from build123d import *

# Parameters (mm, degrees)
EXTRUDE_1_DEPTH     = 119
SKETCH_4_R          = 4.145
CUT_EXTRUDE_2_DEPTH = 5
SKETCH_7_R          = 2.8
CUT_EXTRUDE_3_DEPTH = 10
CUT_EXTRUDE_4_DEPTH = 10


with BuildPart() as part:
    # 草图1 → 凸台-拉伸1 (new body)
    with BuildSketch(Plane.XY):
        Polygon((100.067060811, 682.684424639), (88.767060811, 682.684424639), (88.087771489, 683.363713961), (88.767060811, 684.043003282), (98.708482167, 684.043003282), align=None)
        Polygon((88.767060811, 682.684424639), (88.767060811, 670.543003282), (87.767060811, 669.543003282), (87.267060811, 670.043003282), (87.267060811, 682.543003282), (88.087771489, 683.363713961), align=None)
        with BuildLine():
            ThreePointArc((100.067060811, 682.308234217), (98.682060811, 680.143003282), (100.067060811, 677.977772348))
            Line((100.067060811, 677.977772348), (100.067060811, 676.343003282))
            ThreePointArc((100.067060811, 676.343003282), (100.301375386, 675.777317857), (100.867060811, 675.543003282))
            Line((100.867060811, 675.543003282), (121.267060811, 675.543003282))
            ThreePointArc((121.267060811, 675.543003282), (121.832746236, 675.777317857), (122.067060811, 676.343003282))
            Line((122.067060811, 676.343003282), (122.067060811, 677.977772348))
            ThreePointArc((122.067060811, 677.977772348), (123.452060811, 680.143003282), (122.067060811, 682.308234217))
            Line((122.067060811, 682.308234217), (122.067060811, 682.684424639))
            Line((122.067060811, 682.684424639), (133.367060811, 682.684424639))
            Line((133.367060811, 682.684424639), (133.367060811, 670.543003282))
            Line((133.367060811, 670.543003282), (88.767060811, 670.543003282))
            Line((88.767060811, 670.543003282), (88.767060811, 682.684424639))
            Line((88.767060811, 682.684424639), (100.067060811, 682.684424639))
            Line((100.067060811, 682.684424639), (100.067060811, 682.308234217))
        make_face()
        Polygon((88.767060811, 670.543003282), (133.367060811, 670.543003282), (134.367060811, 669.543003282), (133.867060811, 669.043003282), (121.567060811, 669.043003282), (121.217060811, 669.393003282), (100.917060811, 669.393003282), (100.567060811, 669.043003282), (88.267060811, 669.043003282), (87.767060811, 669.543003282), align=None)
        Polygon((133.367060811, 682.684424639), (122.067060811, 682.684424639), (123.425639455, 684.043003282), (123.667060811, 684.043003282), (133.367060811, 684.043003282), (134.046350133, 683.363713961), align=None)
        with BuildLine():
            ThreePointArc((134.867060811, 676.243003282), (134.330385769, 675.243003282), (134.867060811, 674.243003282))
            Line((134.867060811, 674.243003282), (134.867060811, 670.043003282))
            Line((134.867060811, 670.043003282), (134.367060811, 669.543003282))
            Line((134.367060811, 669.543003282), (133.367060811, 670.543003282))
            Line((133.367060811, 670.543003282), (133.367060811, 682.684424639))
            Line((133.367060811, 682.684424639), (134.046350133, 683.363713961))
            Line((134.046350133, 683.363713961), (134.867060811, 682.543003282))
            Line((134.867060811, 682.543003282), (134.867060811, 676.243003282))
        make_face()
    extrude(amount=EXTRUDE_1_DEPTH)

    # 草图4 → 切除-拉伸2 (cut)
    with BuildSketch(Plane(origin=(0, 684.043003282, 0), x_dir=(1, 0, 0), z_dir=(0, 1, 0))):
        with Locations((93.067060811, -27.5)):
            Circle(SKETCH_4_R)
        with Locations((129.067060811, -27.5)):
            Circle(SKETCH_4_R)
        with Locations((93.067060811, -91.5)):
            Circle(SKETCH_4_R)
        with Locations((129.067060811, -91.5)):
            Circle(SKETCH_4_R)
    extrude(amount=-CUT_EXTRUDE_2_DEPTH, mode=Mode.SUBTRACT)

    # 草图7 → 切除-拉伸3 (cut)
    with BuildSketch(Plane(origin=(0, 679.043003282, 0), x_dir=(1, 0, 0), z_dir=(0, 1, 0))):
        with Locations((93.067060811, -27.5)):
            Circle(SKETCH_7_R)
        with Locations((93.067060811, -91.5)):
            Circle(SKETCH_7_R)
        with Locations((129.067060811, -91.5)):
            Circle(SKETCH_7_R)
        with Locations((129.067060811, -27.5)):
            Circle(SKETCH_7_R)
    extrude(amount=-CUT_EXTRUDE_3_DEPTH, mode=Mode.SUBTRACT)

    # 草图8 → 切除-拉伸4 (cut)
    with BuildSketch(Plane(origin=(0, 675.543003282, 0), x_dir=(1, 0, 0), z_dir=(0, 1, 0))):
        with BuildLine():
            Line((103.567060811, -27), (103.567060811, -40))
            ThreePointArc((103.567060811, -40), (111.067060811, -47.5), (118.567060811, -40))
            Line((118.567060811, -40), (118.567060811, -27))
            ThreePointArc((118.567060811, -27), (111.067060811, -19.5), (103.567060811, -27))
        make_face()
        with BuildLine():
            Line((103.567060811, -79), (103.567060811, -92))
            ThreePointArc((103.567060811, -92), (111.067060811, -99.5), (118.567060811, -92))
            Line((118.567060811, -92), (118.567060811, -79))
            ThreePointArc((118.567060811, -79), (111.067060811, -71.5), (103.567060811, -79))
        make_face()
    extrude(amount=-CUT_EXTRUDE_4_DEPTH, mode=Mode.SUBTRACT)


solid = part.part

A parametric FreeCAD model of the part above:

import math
import FreeCAD as App
import Part
import Sketcher

doc = App.newDocument("Part")
body = doc.addObject("PartDesign::Body", "Body")

# Sketch on XY plane
sketch1 = body.newObject("Sketcher::SketchObject", "Sketch")
sketch1.AttachmentSupport = (doc.getObject("XY_Plane"), [""])
sketch1.MapMode = "FlatFace"
sketch1.addGeometry(Part.LineSegment(App.Vector(87.27, 670.04, 0), App.Vector(88.27, 669.04, 0)), False)
sketch1.addGeometry(Part.LineSegment(App.Vector(88.27, 669.04, 0), App.Vector(100.57, 669.04, 0)), False)
sketch1.addGeometry(Part.LineSegment(App.Vector(100.57, 669.04, 0), App.Vector(100.92, 669.39, 0)), False)
sketch1.addGeometry(Part.LineSegment(App.Vector(100.92, 669.39, 0), App.Vector(121.22, 669.39, 0)), False)
sketch1.addGeometry(Part.LineSegment(App.Vector(121.22, 669.39, 0), App.Vector(121.57, 669.04, 0)), False)
sketch1.addGeometry(Part.LineSegment(App.Vector(121.57, 669.04, 0), App.Vector(133.87, 669.04, 0)), False)
sketch1.addGeometry(Part.LineSegment(App.Vector(133.87, 669.04, 0), App.Vector(134.87, 670.04, 0)), False)
sketch1.addGeometry(Part.LineSegment(App.Vector(134.87, 670.04, 0), App.Vector(134.87, 674.24, 0)), False)
sketch1.addGeometry(Part.ArcOfCircle(Part.Circle(App.Vector(135.53, 675.24, 0), App.Vector(0, 0, 1), 1.2), math.radians(124), math.radians(236)), False)
sketch1.addGeometry(Part.LineSegment(App.Vector(134.87, 676.24, 0), App.Vector(134.87, 682.54, 0)), False)
sketch1.addGeometry(Part.LineSegment(App.Vector(134.87, 682.54, 0), App.Vector(134.05, 683.36, 0)), False)
sketch1.addGeometry(Part.LineSegment(App.Vector(134.05, 683.36, 0), App.Vector(133.37, 684.04, 0)), False)
sketch1.addGeometry(Part.LineSegment(App.Vector(133.37, 684.04, 0), App.Vector(123.43, 684.04, 0)), False)
sketch1.addGeometry(Part.LineSegment(App.Vector(123.43, 684.04, 0), App.Vector(122.07, 682.68, 0)), False)
sketch1.addGeometry(Part.LineSegment(App.Vector(122.07, 682.68, 0), App.Vector(122.07, 682.31, 0)), False)
sketch1.addGeometry(Part.ArcOfCircle(Part.Circle(App.Vector(121.07, 680.14, 0), App.Vector(0, 0, 1), 2.38), math.radians(-65), math.radians(65)), False)
sketch1.addGeometry(Part.LineSegment(App.Vector(122.07, 677.98, 0), App.Vector(122.07, 676.34, 0)), False)
sketch1.addGeometry(Part.ArcOfCircle(Part.Circle(App.Vector(121.27, 676.34, 0), App.Vector(0, 0, 1), 0.8), math.radians(-90), math.radians(0)), False)
sketch1.addGeometry(Part.LineSegment(App.Vector(121.27, 675.54, 0), App.Vector(100.87, 675.54, 0)), False)
sketch1.addGeometry(Part.ArcOfCircle(Part.Circle(App.Vector(100.87, 676.34, 0), App.Vector(0, 0, 1), 0.8), math.radians(180), math.radians(270)), False)
sketch1.addGeometry(Part.LineSegment(App.Vector(100.07, 676.34, 0), App.Vector(100.07, 677.98, 0)), False)
sketch1.addGeometry(Part.ArcOfCircle(Part.Circle(App.Vector(101.07, 680.14, 0), App.Vector(0, 0, 1), 2.38), math.radians(115), math.radians(245)), False)
sketch1.addGeometry(Part.LineSegment(App.Vector(100.07, 682.31, 0), App.Vector(100.07, 682.68, 0)), False)
sketch1.addGeometry(Part.LineSegment(App.Vector(100.07, 682.68, 0), App.Vector(98.71, 684.04, 0)), False)
sketch1.addGeometry(Part.LineSegment(App.Vector(98.71, 684.04, 0), App.Vector(88.77, 684.04, 0)), False)
sketch1.addGeometry(Part.LineSegment(App.Vector(88.77, 684.04, 0), App.Vector(88.09, 683.36, 0)), False)
sketch1.addGeometry(Part.LineSegment(App.Vector(88.09, 683.36, 0), App.Vector(87.27, 682.54, 0)), False)
sketch1.addGeometry(Part.LineSegment(App.Vector(87.27, 682.54, 0), App.Vector(87.27, 670.04, 0)), False)
sketch1.addConstraint(Sketcher.Constraint("Coincident", 0, 2, 1, 1))
sketch1.addConstraint(Sketcher.Constraint("Coincident", 1, 2, 2, 1))
sketch1.addConstraint(Sketcher.Constraint("Coincident", 2, 2, 3, 1))
sketch1.addConstraint(Sketcher.Constraint("Coincident", 3, 2, 4, 1))
sketch1.addConstraint(Sketcher.Constraint("Coincident", 4, 2, 5, 1))
sketch1.addConstraint(Sketcher.Constraint("Coincident", 5, 2, 6, 1))
sketch1.addConstraint(Sketcher.Constraint("Coincident", 6, 2, 7, 1))
sketch1.addConstraint(Sketcher.Constraint("Coincident", 7, 2, 8, 2))
sketch1.addConstraint(Sketcher.Constraint("Coincident", 8, 1, 9, 1))
sketch1.addConstraint(Sketcher.Constraint("Coincident", 9, 2, 10, 1))
sketch1.addConstraint(Sketcher.Constraint("Coincident", 10, 2, 11, 1))
sketch1.addConstraint(Sketcher.Constraint("Coincident", 11, 2, 12, 1))
sketch1.addConstraint(Sketcher.Constraint("Coincident", 12, 2, 13, 1))
sketch1.addConstraint(Sketcher.Constraint("Coincident", 13, 2, 14, 1))
sketch1.addConstraint(Sketcher.Constraint("Coincident", 14, 2, 15, 2))
sketch1.addConstraint(Sketcher.Constraint("Coincident", 15, 1, 16, 1))
sketch1.addConstraint(Sketcher.Constraint("Tangent", 16, 2, 17, 2))
sketch1.addConstraint(Sketcher.Constraint("Tangent", 17, 1, 18, 1))
sketch1.addConstraint(Sketcher.Constraint("Tangent", 18, 2, 19, 2))
sketch1.addConstraint(Sketcher.Constraint("Tangent", 19, 1, 20, 1))
sketch1.addConstraint(Sketcher.Constraint("Coincident", 20, 2, 21, 2))
sketch1.addConstraint(Sketcher.Constraint("Coincident", 21, 1, 22, 1))
sketch1.addConstraint(Sketcher.Constraint("Coincident", 22, 2, 23, 1))
sketch1.addConstraint(Sketcher.Constraint("Coincident", 23, 2, 24, 1))
sketch1.addConstraint(Sketcher.Constraint("Coincident", 24, 2, 25, 1))
sketch1.addConstraint(Sketcher.Constraint("Coincident", 25, 2, 26, 1))
sketch1.addConstraint(Sketcher.Constraint("Coincident", 26, 2, 27, 1))
sketch1.addConstraint(Sketcher.Constraint("Coincident", 27, 2, 0, 1))
sketch1.addConstraint(Sketcher.Constraint("Horizontal", 1))
sketch1.addConstraint(Sketcher.Constraint("Horizontal", 3))
sketch1.addConstraint(Sketcher.Constraint("Horizontal", 5))
sketch1.addConstraint(Sketcher.Constraint("Vertical", 7))
sketch1.addConstraint(Sketcher.Constraint("Vertical", 9))
sketch1.addConstraint(Sketcher.Constraint("Horizontal", 12))
sketch1.addConstraint(Sketcher.Constraint("Vertical", 14))
sketch1.addConstraint(Sketcher.Constraint("Vertical", 16))
sketch1.addConstraint(Sketcher.Constraint("Horizontal", 18))
sketch1.addConstraint(Sketcher.Constraint("Vertical", 20))
sketch1.addConstraint(Sketcher.Constraint("Vertical", 22))
sketch1.addConstraint(Sketcher.Constraint("Horizontal", 24))
sketch1.addConstraint(Sketcher.Constraint("Vertical", 27))
sketch1.addConstraint(Sketcher.Constraint("Equal", 17, 19))
sketch1.addConstraint(Sketcher.Constraint("Equal", 15, 21))
sketch1.addConstraint(Sketcher.Constraint("Perpendicular", 0, 2))
sketch1.addConstraint(Sketcher.Constraint("Perpendicular", 2, 4))
sketch1.addConstraint(Sketcher.Constraint("Perpendicular", 4, 6))
sketch1.addConstraint(Sketcher.Constraint("Perpendicular", 6, 10))
sketch1.addConstraint(Sketcher.Constraint("Parallel", 10, 11))
sketch1.addConstraint(Sketcher.Constraint("Perpendicular", 11, 13))
sketch1.addConstraint(Sketcher.Constraint("Perpendicular", 13, 23))
sketch1.addConstraint(Sketcher.Constraint("Perpendicular", 23, 25))
sketch1.addConstraint(Sketcher.Constraint("Parallel", 25, 26))
sketch1.addConstraint(Sketcher.Constraint("Horizontal", 15, 3, 21, 3))
sketch1.addConstraint(Sketcher.Constraint("Horizontal", 1, 2, 4, 2))
sketch1.addConstraint(Sketcher.Constraint("Horizontal", 15, 1, 20, 2))
sketch1.addConstraint(Sketcher.Constraint("Horizontal", 14, 2, 21, 1))
sketch1.addConstraint(Sketcher.Constraint("Horizontal", 13, 2, 22, 2))
sketch1.addConstraint(Sketcher.Constraint("Horizontal", 12, 2, 23, 2))
sketch1.addConstraint(Sketcher.Constraint("Horizontal", 10, 2, 25, 2))
sketch1.addConstraint(Sketcher.Constraint("Horizontal", 9, 2, 26, 2))
sketch1.addConstraint(Sketcher.Constraint("Horizontal", 6, 2, 27, 2))
sketch1.addConstraint(Sketcher.Constraint("Vertical", 7, 2, 8, 1))
sketch1.addConstraint(Sketcher.Constraint("Vertical", 14, 2, 15, 1))
sketch1.addConstraint(Sketcher.Constraint("Equal", 1, 5))
sketch1.addConstraint(Sketcher.Constraint("Equal", 12, 24))
sketch1.addConstraint(Sketcher.Constraint("Equal", 2, 4))
sketch1.addConstraint(Sketcher.Constraint("Radius", 8, 1.2))
sketch1.addConstraint(Sketcher.Constraint("Radius", 17, 0.8))
sketch1.addConstraint(Sketcher.Constraint("DistanceX", 1, 1, 1, 2, 12.3))
sketch1.addConstraint(Sketcher.Constraint("DistanceX", 3, 1, 3, 2, 20.3))
sketch1.addConstraint(Sketcher.Constraint("DistanceX", 18, 2, 18, 1, 20.4))
sketch1.addConstraint(Sketcher.Constraint("DistanceY", 7, 1, 7, 2, 4.2))
sketch1.addConstraint(Sketcher.Constraint("DistanceY", 9, 1, 9, 2, 6.3))
sketch1.addConstraint(Sketcher.Constraint("DistanceY", 27, 2, 27, 1, 12.5))
sketch1.addConstraint(Sketcher.Constraint("Radius", 15, 2.385))
sketch1.addConstraint(Sketcher.Constraint("DistanceX", 21, 3, 15, 3, 20.0))
sketch1.addConstraint(Sketcher.Constraint("DistanceX", 0, 2, 17, 3, 33.0))
sketch1.addConstraint(Sketcher.Constraint("DistanceX", 5, 2, 6, 2, 1.0))
sketch1.addConstraint(Sketcher.Constraint("DistanceY", 8, 3, 15, 3, 4.9))
sketch1.addConstraint(Sketcher.Constraint("DistanceY", 17, 3, 15, 3, 3.8))
sketch1.addConstraint(Sketcher.Constraint("DistanceX", 11, 2, 9, 2, 1.5))
sketch1.addConstraint(Sketcher.Constraint("DistanceX", 12, 2, 12, 1, 9.941421))
sketch1.addConstraint(Sketcher.Constraint("Distance", 10, 1.16066))
sketch1.addConstraint(Sketcher.Constraint("DistanceX", -1, 1, 15, 3, 121.067061))
sketch1.addConstraint(Sketcher.Constraint("DistanceY", -1, 1, 8, 3, 675.243003))
pad1 = body.newObject("PartDesign::Pad", "Pad")
pad1.Profile = sketch1
pad1.Length = 119

# Sketch on XZ plane
sketch2 = body.newObject("Sketcher::SketchObject", "Sketch001")
sketch2.AttachmentSupport = (doc.getObject("XZ_Plane"), [""])
sketch2.MapMode = "FlatFace"
sketch2.AttachmentOffset = App.Placement(App.Vector(0, 0, -684.043003), App.Rotation())
sketch2.addGeometry(Part.Circle(App.Vector(93.1, 27.5, 0), App.Vector(0, 0, 1), 4.1), False)
sketch2.addGeometry(Part.Circle(App.Vector(129.1, 27.5, 0), App.Vector(0, 0, 1), 4.1), False)
sketch2.addGeometry(Part.Circle(App.Vector(93.1, 91.5, 0), App.Vector(0, 0, 1), 4.1), False)
sketch2.addGeometry(Part.Circle(App.Vector(129.1, 91.5, 0), App.Vector(0, 0, 1), 4.1), False)
sketch2.addConstraint(Sketcher.Constraint("Equal", 0, 1))
sketch2.addConstraint(Sketcher.Constraint("Equal", 1, 2))
sketch2.addConstraint(Sketcher.Constraint("Equal", 2, 3))
sketch2.addConstraint(Sketcher.Constraint("Horizontal", 0, 3, 1, 3))
sketch2.addConstraint(Sketcher.Constraint("Horizontal", 2, 3, 3, 3))
sketch2.addConstraint(Sketcher.Constraint("Vertical", 0, 3, 2, 3))
sketch2.addConstraint(Sketcher.Constraint("Vertical", 1, 3, 3, 3))
sketch2.addConstraint(Sketcher.Constraint("Diameter", 0, 8.29))
sketch2.addConstraint(Sketcher.Constraint("DistanceX", 0, 3, 1, 3, 36.0))
sketch2.addConstraint(Sketcher.Constraint("DistanceY", 0, 3, 2, 3, 64.0))
sketch2.addConstraint(Sketcher.Constraint("DistanceY", -1, 1, 0, 3, 27.5))
sketch2.addConstraint(Sketcher.Constraint("DistanceX", -1, 1, 0, 3, 93.067061))
pocket1 = body.newObject("PartDesign::Pocket", "Pocket")
pocket1.Profile = sketch2
pocket1.Length = 5
pocket1.Reversed = True

# Sketch on XZ plane
sketch3 = body.newObject("Sketcher::SketchObject", "Sketch002")
sketch3.AttachmentSupport = (doc.getObject("XZ_Plane"), [""])
sketch3.MapMode = "FlatFace"
sketch3.AttachmentOffset = App.Placement(App.Vector(0, 0, -679.043003), App.Rotation())
sketch3.addGeometry(Part.Circle(App.Vector(93.1, 27.5, 0), App.Vector(0, 0, 1), 2.8), False)
sketch3.addGeometry(Part.Circle(App.Vector(93.1, 91.5, 0), App.Vector(0, 0, 1), 2.8), False)
sketch3.addGeometry(Part.Circle(App.Vector(129.1, 91.5, 0), App.Vector(0, 0, 1), 2.8), False)
sketch3.addGeometry(Part.Circle(App.Vector(129.1, 27.5, 0), App.Vector(0, 0, 1), 2.8), False)
sketch3.addConstraint(Sketcher.Constraint("Equal", 0, 1))
sketch3.addConstraint(Sketcher.Constraint("Equal", 1, 2))
sketch3.addConstraint(Sketcher.Constraint("Equal", 2, 3))
sketch3.addConstraint(Sketcher.Constraint("Horizontal", 1, 3, 2, 3))
sketch3.addConstraint(Sketcher.Constraint("Horizontal", 0, 3, 3, 3))
sketch3.addConstraint(Sketcher.Constraint("Vertical", 0, 3, 1, 3))
sketch3.addConstraint(Sketcher.Constraint("Vertical", 2, 3, 3, 3))
sketch3.addConstraint(Sketcher.Constraint("Diameter", 0, 5.6))
sketch3.addConstraint(Sketcher.Constraint("DistanceY", 0, 3, 1, 3, 64.0))
sketch3.addConstraint(Sketcher.Constraint("DistanceX", 1, 3, 2, 3, 36.0))
sketch3.addConstraint(Sketcher.Constraint("DistanceY", -1, 1, 0, 3, 27.5))
sketch3.addConstraint(Sketcher.Constraint("DistanceX", -1, 1, 0, 3, 93.067061))
pocket2 = body.newObject("PartDesign::Pocket", "Pocket001")
pocket2.Profile = sketch3
pocket2.Length = 10
pocket2.Reversed = True

# Sketch on XZ plane
sketch4 = body.newObject("Sketcher::SketchObject", "Sketch003")
sketch4.AttachmentSupport = (doc.getObject("XZ_Plane"), [""])
sketch4.MapMode = "FlatFace"
sketch4.AttachmentOffset = App.Placement(App.Vector(0, 0, -675.543003), App.Rotation())
sketch4.addGeometry(Part.LineSegment(App.Vector(104, 27, 0), App.Vector(104, 40, 0)), False)
sketch4.addGeometry(Part.ArcOfCircle(Part.Circle(App.Vector(111, 40, 0), App.Vector(0, 0, 1), 8), math.radians(0), math.radians(180)), False)
sketch4.addGeometry(Part.LineSegment(App.Vector(119, 40, 0), App.Vector(119, 27, 0)), False)
sketch4.addGeometry(Part.ArcOfCircle(Part.Circle(App.Vector(111, 27, 0), App.Vector(0, 0, 1), 8), math.radians(180), math.radians(360)), False)
sketch4.addGeometry(Part.LineSegment(App.Vector(104, 79, 0), App.Vector(104, 92, 0)), False)
sketch4.addGeometry(Part.ArcOfCircle(Part.Circle(App.Vector(111, 92, 0), App.Vector(0, 0, 1), 8), math.radians(0), math.radians(180)), False)
sketch4.addGeometry(Part.LineSegment(App.Vector(119, 92, 0), App.Vector(119, 79, 0)), False)
sketch4.addGeometry(Part.ArcOfCircle(Part.Circle(App.Vector(111, 79, 0), App.Vector(0, 0, 1), 8), math.radians(180), math.radians(360)), False)
sketch4.addConstraint(Sketcher.Constraint("Tangent", 0, 2, 1, 2))
sketch4.addConstraint(Sketcher.Constraint("Tangent", 1, 1, 2, 1))
sketch4.addConstraint(Sketcher.Constraint("Tangent", 2, 2, 3, 2))
sketch4.addConstraint(Sketcher.Constraint("Tangent", 3, 1, 0, 1))
sketch4.addConstraint(Sketcher.Constraint("Tangent", 4, 2, 5, 2))
sketch4.addConstraint(Sketcher.Constraint("Tangent", 5, 1, 6, 1))
sketch4.addConstraint(Sketcher.Constraint("Tangent", 6, 2, 7, 2))
sketch4.addConstraint(Sketcher.Constraint("Tangent", 7, 1, 4, 1))
sketch4.addConstraint(Sketcher.Constraint("Vertical", 0))
sketch4.addConstraint(Sketcher.Constraint("Vertical", 2))
sketch4.addConstraint(Sketcher.Constraint("Vertical", 4))
sketch4.addConstraint(Sketcher.Constraint("Vertical", 6))
sketch4.addConstraint(Sketcher.Constraint("Equal", 3, 5))
sketch4.addConstraint(Sketcher.Constraint("Vertical", 3, 3, 5, 3))
sketch4.addConstraint(Sketcher.Constraint("Equal", 2, 4))
sketch4.addConstraint(Sketcher.Constraint("Radius", 1, 7.5))
sketch4.addConstraint(Sketcher.Constraint("DistanceY", 0, 1, 0, 2, 13.0))
sketch4.addConstraint(Sketcher.Constraint("DistanceY", -1, 1, 1, 3, 40.0))
sketch4.addConstraint(Sketcher.Constraint("DistanceY", -1, 1, 5, 3, 92.0))
sketch4.addConstraint(Sketcher.Constraint("DistanceX", -1, 1, 1, 3, 111.067061))
pocket3 = body.newObject("PartDesign::Pocket", "Pocket002")
pocket3.Profile = sketch4
pocket3.Length = 10
pocket3.Reversed = True

doc.recompute()
